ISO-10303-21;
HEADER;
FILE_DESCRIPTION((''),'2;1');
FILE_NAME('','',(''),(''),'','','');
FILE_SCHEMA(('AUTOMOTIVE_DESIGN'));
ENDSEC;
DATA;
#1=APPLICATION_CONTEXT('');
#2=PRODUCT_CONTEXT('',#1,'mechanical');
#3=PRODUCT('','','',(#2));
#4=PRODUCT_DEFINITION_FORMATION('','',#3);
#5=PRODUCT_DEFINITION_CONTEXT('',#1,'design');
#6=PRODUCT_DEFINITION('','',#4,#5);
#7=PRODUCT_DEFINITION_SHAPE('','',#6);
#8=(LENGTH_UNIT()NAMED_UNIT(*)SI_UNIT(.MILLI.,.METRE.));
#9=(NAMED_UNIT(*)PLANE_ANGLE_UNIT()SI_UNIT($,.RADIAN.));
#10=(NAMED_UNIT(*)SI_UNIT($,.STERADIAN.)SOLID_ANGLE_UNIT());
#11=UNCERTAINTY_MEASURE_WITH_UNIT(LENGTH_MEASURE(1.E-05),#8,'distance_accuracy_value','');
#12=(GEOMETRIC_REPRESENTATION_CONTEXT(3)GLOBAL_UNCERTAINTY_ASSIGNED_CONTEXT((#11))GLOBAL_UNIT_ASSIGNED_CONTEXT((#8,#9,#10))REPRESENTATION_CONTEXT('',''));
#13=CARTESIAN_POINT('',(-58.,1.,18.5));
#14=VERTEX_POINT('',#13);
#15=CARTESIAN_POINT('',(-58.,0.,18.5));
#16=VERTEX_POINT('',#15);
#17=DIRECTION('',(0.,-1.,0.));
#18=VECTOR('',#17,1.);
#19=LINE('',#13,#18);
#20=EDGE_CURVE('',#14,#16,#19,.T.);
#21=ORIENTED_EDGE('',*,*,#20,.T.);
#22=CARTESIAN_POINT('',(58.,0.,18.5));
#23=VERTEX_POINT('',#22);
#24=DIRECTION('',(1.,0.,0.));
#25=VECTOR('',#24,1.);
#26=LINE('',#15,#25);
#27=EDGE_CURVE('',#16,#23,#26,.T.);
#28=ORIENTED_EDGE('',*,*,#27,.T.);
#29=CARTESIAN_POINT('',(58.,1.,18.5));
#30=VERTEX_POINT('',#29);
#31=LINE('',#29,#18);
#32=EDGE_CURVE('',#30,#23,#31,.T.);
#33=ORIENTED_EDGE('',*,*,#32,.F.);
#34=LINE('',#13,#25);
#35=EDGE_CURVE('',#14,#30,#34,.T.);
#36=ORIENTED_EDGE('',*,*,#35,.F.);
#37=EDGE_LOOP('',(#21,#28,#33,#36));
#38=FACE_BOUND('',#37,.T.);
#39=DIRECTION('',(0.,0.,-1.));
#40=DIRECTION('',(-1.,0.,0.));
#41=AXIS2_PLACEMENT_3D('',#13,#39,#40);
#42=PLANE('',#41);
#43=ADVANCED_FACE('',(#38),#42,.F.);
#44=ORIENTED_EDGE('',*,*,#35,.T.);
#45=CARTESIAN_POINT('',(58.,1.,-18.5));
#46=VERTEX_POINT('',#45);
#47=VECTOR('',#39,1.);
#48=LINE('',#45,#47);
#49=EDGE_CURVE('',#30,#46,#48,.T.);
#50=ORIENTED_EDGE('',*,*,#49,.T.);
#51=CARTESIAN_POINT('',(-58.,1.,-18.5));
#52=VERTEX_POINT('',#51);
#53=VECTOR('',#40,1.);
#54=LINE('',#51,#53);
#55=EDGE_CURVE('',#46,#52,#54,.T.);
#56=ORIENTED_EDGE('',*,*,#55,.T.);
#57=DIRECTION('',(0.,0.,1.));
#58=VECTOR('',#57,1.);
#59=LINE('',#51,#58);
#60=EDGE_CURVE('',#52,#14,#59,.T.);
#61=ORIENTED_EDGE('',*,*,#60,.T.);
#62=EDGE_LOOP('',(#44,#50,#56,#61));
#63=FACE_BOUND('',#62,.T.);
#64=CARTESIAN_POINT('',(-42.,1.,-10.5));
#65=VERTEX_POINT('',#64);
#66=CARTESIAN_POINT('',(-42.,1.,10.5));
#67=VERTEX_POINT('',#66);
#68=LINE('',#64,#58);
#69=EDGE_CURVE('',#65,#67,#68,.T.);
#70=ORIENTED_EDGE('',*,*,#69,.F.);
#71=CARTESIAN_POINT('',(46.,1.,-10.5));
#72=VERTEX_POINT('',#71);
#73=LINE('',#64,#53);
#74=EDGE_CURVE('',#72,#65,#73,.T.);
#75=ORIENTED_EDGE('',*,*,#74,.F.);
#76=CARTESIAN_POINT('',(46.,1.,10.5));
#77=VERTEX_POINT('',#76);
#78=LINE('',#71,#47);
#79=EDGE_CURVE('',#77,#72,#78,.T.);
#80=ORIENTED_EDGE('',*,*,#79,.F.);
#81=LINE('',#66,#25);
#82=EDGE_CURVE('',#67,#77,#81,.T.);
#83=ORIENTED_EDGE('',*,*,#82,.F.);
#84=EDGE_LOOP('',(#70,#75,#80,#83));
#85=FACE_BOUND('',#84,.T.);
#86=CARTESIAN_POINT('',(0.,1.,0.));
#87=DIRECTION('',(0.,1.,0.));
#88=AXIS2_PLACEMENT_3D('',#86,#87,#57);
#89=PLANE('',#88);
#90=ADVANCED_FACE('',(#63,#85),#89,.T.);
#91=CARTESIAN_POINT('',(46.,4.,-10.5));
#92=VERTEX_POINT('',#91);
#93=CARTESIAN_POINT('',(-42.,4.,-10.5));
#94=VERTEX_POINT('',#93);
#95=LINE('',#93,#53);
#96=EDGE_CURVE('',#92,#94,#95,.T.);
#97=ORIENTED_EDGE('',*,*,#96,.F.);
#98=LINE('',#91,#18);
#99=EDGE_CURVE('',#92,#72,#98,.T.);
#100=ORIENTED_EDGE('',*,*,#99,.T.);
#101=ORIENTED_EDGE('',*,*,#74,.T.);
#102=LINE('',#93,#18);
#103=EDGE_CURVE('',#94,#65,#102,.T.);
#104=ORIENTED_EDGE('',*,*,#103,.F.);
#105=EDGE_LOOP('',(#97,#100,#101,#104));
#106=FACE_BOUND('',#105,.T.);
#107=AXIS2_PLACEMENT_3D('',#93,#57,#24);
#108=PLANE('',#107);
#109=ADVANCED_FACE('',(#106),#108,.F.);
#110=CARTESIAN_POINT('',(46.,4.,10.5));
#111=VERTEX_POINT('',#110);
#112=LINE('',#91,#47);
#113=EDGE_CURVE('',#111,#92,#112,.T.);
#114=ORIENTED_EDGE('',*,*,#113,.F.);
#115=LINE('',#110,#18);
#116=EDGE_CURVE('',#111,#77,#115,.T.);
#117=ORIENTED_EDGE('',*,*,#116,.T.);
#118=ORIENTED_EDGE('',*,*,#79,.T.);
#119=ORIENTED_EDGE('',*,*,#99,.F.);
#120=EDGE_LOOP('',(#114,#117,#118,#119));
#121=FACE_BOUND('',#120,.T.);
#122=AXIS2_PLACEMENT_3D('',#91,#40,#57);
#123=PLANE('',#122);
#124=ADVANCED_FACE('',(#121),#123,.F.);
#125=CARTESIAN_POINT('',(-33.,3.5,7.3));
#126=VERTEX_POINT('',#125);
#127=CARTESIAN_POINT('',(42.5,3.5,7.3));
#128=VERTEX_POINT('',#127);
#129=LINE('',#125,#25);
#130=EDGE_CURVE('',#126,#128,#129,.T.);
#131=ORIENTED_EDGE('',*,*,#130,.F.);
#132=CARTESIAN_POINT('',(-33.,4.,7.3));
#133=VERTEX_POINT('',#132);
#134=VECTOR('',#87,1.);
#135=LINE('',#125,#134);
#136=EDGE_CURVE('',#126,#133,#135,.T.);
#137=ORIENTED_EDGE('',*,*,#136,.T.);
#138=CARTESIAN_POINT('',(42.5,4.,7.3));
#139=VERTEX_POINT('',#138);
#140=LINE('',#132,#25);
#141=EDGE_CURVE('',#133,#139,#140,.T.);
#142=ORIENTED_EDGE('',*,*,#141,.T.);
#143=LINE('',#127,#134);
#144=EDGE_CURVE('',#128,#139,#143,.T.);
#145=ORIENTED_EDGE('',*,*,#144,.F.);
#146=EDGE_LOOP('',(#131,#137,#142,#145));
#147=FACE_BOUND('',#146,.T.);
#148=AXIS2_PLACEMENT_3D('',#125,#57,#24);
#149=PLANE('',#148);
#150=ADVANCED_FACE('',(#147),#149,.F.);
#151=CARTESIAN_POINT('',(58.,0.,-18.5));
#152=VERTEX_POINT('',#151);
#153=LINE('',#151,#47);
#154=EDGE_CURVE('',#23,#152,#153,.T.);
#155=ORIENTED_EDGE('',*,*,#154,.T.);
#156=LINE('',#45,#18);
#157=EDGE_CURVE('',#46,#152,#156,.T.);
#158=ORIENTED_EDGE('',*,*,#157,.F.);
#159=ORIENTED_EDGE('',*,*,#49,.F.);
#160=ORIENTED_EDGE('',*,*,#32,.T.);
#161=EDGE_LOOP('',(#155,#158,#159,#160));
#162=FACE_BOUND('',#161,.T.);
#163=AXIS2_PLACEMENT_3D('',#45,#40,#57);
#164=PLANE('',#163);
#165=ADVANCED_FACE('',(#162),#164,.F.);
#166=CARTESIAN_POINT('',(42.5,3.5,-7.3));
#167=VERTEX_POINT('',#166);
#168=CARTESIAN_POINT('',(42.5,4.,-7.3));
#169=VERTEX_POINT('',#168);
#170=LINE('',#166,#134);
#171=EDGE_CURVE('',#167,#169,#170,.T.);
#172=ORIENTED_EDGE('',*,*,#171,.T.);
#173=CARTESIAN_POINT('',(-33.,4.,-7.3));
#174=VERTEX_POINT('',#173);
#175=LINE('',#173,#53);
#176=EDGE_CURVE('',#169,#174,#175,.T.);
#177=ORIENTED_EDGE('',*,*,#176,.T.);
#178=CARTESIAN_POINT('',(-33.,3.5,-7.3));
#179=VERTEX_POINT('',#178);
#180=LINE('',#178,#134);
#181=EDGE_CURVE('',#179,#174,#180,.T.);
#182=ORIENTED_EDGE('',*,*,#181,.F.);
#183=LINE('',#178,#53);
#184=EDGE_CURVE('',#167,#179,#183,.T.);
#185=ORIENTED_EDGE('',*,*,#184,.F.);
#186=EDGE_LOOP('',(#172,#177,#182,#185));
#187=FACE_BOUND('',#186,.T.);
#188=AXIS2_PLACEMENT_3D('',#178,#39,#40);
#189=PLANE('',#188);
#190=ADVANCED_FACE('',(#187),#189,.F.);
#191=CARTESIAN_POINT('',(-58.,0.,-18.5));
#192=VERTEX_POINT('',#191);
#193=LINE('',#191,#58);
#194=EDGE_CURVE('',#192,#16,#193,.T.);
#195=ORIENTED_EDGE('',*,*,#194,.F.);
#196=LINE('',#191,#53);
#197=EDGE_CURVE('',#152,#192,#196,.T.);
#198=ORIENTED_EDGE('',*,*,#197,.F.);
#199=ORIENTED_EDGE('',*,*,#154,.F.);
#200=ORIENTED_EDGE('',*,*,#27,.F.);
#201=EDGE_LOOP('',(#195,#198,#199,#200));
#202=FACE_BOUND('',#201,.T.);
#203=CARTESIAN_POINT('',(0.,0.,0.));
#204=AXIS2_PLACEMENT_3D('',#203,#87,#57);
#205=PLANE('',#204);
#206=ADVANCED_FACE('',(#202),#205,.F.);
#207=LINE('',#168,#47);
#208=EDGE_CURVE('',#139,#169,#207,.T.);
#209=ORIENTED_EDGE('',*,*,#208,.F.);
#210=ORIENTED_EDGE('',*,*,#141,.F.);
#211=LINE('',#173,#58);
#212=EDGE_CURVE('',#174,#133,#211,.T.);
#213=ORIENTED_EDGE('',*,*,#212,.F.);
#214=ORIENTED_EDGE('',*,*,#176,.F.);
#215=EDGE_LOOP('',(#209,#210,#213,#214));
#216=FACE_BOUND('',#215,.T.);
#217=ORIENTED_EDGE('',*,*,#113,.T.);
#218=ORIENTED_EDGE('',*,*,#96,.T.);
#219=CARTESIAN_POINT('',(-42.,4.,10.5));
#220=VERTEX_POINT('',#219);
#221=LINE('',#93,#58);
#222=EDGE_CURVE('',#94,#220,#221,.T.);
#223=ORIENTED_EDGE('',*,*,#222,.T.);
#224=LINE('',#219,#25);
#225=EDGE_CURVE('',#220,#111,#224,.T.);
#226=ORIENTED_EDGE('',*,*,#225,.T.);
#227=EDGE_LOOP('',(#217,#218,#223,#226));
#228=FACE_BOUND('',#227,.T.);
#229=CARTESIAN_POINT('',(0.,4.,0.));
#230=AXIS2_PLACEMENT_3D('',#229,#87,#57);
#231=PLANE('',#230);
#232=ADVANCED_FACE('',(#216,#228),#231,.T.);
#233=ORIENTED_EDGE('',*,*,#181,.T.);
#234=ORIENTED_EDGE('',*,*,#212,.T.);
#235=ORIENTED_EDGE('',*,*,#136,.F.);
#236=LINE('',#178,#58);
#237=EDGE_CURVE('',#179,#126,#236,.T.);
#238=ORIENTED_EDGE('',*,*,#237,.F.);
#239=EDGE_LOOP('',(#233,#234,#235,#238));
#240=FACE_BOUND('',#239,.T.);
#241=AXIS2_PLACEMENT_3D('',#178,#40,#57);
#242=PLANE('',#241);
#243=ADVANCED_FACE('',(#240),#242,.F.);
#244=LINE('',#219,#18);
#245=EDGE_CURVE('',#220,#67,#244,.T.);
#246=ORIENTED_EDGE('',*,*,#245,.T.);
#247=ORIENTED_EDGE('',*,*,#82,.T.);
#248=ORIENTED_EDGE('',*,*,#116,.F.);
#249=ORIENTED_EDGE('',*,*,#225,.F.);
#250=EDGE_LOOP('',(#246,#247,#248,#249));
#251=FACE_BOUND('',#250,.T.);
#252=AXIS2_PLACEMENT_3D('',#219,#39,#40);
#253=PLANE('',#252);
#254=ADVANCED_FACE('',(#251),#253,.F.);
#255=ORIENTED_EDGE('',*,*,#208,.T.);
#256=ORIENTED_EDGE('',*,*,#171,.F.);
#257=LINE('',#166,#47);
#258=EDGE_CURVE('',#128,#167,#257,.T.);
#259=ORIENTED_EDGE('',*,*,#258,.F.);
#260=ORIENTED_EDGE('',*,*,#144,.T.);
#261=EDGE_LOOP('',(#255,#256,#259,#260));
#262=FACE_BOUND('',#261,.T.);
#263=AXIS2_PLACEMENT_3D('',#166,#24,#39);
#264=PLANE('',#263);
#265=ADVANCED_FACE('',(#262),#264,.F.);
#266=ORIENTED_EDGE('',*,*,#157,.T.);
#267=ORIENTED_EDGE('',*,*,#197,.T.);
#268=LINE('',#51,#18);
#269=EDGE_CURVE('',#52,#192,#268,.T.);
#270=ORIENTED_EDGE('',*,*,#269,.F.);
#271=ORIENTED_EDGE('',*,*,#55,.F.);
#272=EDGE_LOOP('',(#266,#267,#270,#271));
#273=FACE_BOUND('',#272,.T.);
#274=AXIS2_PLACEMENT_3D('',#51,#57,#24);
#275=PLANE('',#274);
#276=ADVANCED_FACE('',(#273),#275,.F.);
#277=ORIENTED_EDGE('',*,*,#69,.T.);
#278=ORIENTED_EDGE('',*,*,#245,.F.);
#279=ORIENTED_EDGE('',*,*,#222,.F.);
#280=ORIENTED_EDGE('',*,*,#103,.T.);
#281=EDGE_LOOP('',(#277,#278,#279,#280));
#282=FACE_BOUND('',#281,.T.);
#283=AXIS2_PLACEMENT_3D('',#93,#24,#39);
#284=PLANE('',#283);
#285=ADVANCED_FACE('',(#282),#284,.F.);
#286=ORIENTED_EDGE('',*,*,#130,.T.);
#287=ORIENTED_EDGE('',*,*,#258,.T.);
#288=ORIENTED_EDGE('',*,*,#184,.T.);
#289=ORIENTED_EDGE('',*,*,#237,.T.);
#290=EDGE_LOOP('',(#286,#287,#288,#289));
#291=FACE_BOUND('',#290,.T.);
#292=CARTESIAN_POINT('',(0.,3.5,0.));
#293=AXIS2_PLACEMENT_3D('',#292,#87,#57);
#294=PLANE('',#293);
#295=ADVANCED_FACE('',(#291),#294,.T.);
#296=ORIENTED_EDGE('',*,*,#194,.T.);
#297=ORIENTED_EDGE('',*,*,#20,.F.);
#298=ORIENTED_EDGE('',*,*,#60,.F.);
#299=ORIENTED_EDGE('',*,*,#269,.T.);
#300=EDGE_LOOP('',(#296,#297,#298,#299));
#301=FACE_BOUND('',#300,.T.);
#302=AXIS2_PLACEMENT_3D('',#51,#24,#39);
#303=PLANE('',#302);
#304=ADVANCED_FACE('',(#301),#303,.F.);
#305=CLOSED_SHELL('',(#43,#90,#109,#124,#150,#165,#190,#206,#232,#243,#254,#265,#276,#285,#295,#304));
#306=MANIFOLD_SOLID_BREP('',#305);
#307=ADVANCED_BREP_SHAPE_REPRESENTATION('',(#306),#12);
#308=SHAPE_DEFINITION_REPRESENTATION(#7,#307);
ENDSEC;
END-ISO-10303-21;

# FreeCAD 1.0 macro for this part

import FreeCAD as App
import Part
import Sketcher
Q = App.Units.Quantity

doc = App.newDocument("Part")
body = doc.addObject("PartDesign::Body", "Body")

sketch1 = body.newObject("Sketcher::SketchObject", "Sketch")
sketch1.AttachmentSupport = (doc.getObject("XZ_Plane"), [""])
sketch1.MapMode = "FlatFace"
sketch1.addGeometry([
    Part.LineSegment(App.Vector(-58, -18, 0), App.Vector(-58, 18, 0)),
    Part.LineSegment(App.Vector(-58, 18, 0), App.Vector(58, 18, 0)),
    Part.LineSegment(App.Vector(58, 18, 0), App.Vector(58, -18, 0)),
    Part.LineSegment(App.Vector(58, -18, 0), App.Vector(-58, -18, 0)),
], False)
sketch1.addConstraint([
    Sketcher.Constraint("Coincident", 0, 2, 1, 1),
    Sketcher.Constraint("Coincident", 1, 2, 2, 1),
    Sketcher.Constraint("Coincident", 2, 2, 3, 1),
    Sketcher.Constraint("Coincident", 3, 2, 0, 1),
    Sketcher.Constraint("Vertical", 0),
    Sketcher.Constraint("Horizontal", 1),
    Sketcher.Constraint("Vertical", 2),
    Sketcher.Constraint("Horizontal", 3),
    Sketcher.Constraint("Symmetric", 0, 2, 2, 2, -1, 1),
    Sketcher.Constraint("DistanceX", 1, 1, 1, 2, Q("116 mm")),
    Sketcher.Constraint("DistanceY", 0, 1, 0, 2, Q("37 mm")),
])
pad1 = body.newObject("PartDesign::Pad", "Pad")
pad1.Profile = sketch1
pad1.Length = 1
pad1.Reversed = True

sketch2 = body.newObject("Sketcher::SketchObject", "Sketch001")
sketch2.AttachmentSupport = (doc.getObject("XZ_Plane"), [""])
sketch2.MapMode = "FlatFace"
sketch2.AttachmentOffset = App.Placement(App.Vector(0, 0, -1), App.Rotation())
sketch2.addGeometry([
    Part.LineSegment(App.Vector(-42, -10, 0), App.Vector(-42, 10, 0)),
    Part.LineSegment(App.Vector(-42, 10, 0), App.Vector(46, 10, 0)),
    Part.LineSegment(App.Vector(46, 10, 0), App.Vector(46, -10, 0)),
    Part.LineSegment(App.Vector(46, -10, 0), App.Vector(-42, -10, 0)),
], False)
sketch2.addConstraint([
    Sketcher.Constraint("Coincident", 0, 2, 1, 1),
    Sketcher.Constraint("Coincident", 1, 2, 2, 1),
    Sketcher.Constraint("Coincident", 2, 2, 3, 1),
    Sketcher.Constraint("Coincident", 3, 2, 0, 1),
    Sketcher.Constraint("Vertical", 0),
    Sketcher.Constraint("Horizontal", 1),
    Sketcher.Constraint("Vertical", 2),
    Sketcher.Constraint("Horizontal", 3),
    Sketcher.Constraint("DistanceX", 1, 1, 1, 2, Q("88 mm")),
    Sketcher.Constraint("DistanceY", 0, 1, 0, 2, Q("21 mm")),
    Sketcher.Constraint("DistanceX", 0, 2, -1, 1, Q("42 mm")),
    Sketcher.Constraint("DistanceY", -1, 1, 0, 2, Q("10.5 mm")),
])
pad2 = body.newObject("PartDesign::Pad", "Pad001")
pad2.Profile = sketch2
pad2.Length = 3
pad2.Reversed = True

sketch3 = body.newObject("Sketcher::SketchObject", "Sketch002")
sketch3.AttachmentSupport = (doc.getObject("XZ_Plane"), [""])
sketch3.MapMode = "FlatFace"
sketch3.AttachmentOffset = App.Placement(App.Vector(0, 0, -4), App.Rotation())
sketch3.addGeometry([
    Part.LineSegment(App.Vector(-33, -7, 0), App.Vector(-33, 7, 0)),
    Part.LineSegment(App.Vector(-33, 7, 0), App.Vector(42, 7, 0)),
    Part.LineSegment(App.Vector(42, 7, 0), App.Vector(42, -7, 0)),
    Part.LineSegment(App.Vector(42, -7, 0), App.Vector(-33, -7, 0)),
], False)
sketch3.addConstraint([
    Sketcher.Constraint("Coincident", 0, 2, 1, 1),
    Sketcher.Constraint("Coincident", 1, 2, 2, 1),
    Sketcher.Constraint("Coincident", 2, 2, 3, 1),
    Sketcher.Constraint("Coincident", 3, 2, 0, 1),
    Sketcher.Constraint("Vertical", 0),
    Sketcher.Constraint("Horizontal", 1),
    Sketcher.Constraint("Vertical", 2),
    Sketcher.Constraint("Horizontal", 3),
    Sketcher.Constraint("DistanceX", 1, 1, 1, 2, Q("75.5 mm")),
    Sketcher.Constraint("DistanceY", 0, 1, 0, 2, Q("14.6 mm")),
    Sketcher.Constraint("DistanceX", 0, 2, -1, 1, Q("33 mm")),
    Sketcher.Constraint("DistanceY", -1, 1, 0, 2, Q("7.3 mm")),
])
pocket1 = body.newObject("PartDesign::Pocket", "Pocket")
pocket1.Profile = sketch3
pocket1.Length = 0.5
pocket1.Reversed = True

doc.recompute()
